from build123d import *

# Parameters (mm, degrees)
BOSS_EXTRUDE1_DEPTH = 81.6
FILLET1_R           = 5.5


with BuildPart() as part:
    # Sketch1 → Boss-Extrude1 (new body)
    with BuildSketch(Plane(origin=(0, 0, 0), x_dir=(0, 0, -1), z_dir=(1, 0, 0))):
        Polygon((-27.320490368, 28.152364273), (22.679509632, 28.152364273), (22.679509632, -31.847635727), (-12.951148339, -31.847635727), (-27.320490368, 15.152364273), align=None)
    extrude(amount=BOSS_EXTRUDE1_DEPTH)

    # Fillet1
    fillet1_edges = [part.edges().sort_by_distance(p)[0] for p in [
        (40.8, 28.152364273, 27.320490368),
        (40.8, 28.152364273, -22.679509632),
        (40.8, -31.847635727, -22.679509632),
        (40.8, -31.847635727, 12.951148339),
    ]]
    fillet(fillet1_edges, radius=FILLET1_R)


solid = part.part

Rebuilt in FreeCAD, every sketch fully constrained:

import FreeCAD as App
import Part
import Sketcher
Q = App.Units.Quantity


def edges_at(feature, points):
    """Names of the edges that pass closest to the given points."""
    edges = feature.Shape.Edges
    near = lambda p: min(range(len(edges)), key=lambda i: edges[i].distToShape(Part.Vertex(*p))[0])
    return sorted({f"Edge{near(p) + 1}" for p in points})


def add_polygon(sketch, points):
    """Adds a closed chain of lines whose ends are joined by coincident constraints."""
    first, n = sketch.GeometryCount, len(points)
    for a, b in zip(points, points[1:] + points[:1]):
        sketch.addGeometry(Part.LineSegment(App.Vector(*a, 0), App.Vector(*b, 0)), False)
    for i in range(n):
        sketch.addConstraint(Sketcher.Constraint("Coincident", first + i, 2, first + (i + 1) % n, 1))

doc = App.newDocument("Part")
params = doc.addObject("Spreadsheet::Sheet", "Params")
for row, (alias, value) in enumerate([
    ("sketch1_width", "13 mm"),
    ("sketch1_width2", "60 mm"),
    ("sketch1_height", "50 mm"),
    ("pad1_length", "81.6 mm"),
    ("fillet_radius", "5.5 mm"),
], start=1):
    params.set(f"A{row}", alias)
    params.set(f"B{row}", "=" + value)
    params.setAlias(f"B{row}", alias)

body = doc.addObject("PartDesign::Body", "Body")

# Sketch on YZ plane
sketch1 = doc.addObject("Sketcher::SketchObject", "Sketch")
body.addObject(sketch1)
sketch1.AttachmentSupport = (doc.YZ_Plane, [""])
sketch1.MapMode = "FlatFace"
add_polygon(sketch1, [(28, -23), (28, 27), (15, 27), (-32, 13), (-32, -23)])  # lines 0-4
sketch1.addConstraint(Sketcher.Constraint("Vertical", 0))
sketch1.addConstraint(Sketcher.Constraint("Horizontal", 1))
sketch1.addConstraint(Sketcher.Constraint("Vertical", 3))
sketch1.addConstraint(Sketcher.Constraint("Horizontal", 4))
sketch1.addConstraint(Sketcher.Constraint("DistanceX", 1, 2, 1, 1, 13.0))
sketch1.addConstraint(Sketcher.Constraint("DistanceX", 4, 1, 4, 2, 60.0))
sketch1.addConstraint(Sketcher.Constraint("DistanceY", 0, 1, 0, 2, 50.0))
sketch1.addConstraint(Sketcher.Constraint("Angle", 2, Q("-163 deg")))
sketch1.addConstraint(Sketcher.Constraint("DistanceY", -1, 1, 0, 2, 27.32049))
sketch1.addConstraint(Sketcher.Constraint("DistanceX", -1, 1, 0, 2, 28.152364))
sketch1.setExpression("Constraints[9]", "Params.sketch1_width")
sketch1.setExpression("Constraints[10]", "Params.sketch1_width2")
sketch1.setExpression("Constraints[11]", "Params.sketch1_height")
pad1 = doc.addObject("PartDesign::Pad", "Pad")
body.addObject(pad1)
pad1.Profile = sketch1
pad1.setExpression("Length", "Params.pad1_length")
doc.recompute()

fillet = doc.addObject("PartDesign::Fillet", "Fillet")
body.addObject(fillet)
fillet.Base = (pad1, edges_at(pad1, [
    (40.8, 28.152, 27.32),
    (40.8, 28.152, -22.68),
    (40.8, -31.848, -22.68),
    (40.8, -31.848, 12.951),
]))
fillet.setExpression("Radius", "Params.fillet_radius")

doc.recompute()
